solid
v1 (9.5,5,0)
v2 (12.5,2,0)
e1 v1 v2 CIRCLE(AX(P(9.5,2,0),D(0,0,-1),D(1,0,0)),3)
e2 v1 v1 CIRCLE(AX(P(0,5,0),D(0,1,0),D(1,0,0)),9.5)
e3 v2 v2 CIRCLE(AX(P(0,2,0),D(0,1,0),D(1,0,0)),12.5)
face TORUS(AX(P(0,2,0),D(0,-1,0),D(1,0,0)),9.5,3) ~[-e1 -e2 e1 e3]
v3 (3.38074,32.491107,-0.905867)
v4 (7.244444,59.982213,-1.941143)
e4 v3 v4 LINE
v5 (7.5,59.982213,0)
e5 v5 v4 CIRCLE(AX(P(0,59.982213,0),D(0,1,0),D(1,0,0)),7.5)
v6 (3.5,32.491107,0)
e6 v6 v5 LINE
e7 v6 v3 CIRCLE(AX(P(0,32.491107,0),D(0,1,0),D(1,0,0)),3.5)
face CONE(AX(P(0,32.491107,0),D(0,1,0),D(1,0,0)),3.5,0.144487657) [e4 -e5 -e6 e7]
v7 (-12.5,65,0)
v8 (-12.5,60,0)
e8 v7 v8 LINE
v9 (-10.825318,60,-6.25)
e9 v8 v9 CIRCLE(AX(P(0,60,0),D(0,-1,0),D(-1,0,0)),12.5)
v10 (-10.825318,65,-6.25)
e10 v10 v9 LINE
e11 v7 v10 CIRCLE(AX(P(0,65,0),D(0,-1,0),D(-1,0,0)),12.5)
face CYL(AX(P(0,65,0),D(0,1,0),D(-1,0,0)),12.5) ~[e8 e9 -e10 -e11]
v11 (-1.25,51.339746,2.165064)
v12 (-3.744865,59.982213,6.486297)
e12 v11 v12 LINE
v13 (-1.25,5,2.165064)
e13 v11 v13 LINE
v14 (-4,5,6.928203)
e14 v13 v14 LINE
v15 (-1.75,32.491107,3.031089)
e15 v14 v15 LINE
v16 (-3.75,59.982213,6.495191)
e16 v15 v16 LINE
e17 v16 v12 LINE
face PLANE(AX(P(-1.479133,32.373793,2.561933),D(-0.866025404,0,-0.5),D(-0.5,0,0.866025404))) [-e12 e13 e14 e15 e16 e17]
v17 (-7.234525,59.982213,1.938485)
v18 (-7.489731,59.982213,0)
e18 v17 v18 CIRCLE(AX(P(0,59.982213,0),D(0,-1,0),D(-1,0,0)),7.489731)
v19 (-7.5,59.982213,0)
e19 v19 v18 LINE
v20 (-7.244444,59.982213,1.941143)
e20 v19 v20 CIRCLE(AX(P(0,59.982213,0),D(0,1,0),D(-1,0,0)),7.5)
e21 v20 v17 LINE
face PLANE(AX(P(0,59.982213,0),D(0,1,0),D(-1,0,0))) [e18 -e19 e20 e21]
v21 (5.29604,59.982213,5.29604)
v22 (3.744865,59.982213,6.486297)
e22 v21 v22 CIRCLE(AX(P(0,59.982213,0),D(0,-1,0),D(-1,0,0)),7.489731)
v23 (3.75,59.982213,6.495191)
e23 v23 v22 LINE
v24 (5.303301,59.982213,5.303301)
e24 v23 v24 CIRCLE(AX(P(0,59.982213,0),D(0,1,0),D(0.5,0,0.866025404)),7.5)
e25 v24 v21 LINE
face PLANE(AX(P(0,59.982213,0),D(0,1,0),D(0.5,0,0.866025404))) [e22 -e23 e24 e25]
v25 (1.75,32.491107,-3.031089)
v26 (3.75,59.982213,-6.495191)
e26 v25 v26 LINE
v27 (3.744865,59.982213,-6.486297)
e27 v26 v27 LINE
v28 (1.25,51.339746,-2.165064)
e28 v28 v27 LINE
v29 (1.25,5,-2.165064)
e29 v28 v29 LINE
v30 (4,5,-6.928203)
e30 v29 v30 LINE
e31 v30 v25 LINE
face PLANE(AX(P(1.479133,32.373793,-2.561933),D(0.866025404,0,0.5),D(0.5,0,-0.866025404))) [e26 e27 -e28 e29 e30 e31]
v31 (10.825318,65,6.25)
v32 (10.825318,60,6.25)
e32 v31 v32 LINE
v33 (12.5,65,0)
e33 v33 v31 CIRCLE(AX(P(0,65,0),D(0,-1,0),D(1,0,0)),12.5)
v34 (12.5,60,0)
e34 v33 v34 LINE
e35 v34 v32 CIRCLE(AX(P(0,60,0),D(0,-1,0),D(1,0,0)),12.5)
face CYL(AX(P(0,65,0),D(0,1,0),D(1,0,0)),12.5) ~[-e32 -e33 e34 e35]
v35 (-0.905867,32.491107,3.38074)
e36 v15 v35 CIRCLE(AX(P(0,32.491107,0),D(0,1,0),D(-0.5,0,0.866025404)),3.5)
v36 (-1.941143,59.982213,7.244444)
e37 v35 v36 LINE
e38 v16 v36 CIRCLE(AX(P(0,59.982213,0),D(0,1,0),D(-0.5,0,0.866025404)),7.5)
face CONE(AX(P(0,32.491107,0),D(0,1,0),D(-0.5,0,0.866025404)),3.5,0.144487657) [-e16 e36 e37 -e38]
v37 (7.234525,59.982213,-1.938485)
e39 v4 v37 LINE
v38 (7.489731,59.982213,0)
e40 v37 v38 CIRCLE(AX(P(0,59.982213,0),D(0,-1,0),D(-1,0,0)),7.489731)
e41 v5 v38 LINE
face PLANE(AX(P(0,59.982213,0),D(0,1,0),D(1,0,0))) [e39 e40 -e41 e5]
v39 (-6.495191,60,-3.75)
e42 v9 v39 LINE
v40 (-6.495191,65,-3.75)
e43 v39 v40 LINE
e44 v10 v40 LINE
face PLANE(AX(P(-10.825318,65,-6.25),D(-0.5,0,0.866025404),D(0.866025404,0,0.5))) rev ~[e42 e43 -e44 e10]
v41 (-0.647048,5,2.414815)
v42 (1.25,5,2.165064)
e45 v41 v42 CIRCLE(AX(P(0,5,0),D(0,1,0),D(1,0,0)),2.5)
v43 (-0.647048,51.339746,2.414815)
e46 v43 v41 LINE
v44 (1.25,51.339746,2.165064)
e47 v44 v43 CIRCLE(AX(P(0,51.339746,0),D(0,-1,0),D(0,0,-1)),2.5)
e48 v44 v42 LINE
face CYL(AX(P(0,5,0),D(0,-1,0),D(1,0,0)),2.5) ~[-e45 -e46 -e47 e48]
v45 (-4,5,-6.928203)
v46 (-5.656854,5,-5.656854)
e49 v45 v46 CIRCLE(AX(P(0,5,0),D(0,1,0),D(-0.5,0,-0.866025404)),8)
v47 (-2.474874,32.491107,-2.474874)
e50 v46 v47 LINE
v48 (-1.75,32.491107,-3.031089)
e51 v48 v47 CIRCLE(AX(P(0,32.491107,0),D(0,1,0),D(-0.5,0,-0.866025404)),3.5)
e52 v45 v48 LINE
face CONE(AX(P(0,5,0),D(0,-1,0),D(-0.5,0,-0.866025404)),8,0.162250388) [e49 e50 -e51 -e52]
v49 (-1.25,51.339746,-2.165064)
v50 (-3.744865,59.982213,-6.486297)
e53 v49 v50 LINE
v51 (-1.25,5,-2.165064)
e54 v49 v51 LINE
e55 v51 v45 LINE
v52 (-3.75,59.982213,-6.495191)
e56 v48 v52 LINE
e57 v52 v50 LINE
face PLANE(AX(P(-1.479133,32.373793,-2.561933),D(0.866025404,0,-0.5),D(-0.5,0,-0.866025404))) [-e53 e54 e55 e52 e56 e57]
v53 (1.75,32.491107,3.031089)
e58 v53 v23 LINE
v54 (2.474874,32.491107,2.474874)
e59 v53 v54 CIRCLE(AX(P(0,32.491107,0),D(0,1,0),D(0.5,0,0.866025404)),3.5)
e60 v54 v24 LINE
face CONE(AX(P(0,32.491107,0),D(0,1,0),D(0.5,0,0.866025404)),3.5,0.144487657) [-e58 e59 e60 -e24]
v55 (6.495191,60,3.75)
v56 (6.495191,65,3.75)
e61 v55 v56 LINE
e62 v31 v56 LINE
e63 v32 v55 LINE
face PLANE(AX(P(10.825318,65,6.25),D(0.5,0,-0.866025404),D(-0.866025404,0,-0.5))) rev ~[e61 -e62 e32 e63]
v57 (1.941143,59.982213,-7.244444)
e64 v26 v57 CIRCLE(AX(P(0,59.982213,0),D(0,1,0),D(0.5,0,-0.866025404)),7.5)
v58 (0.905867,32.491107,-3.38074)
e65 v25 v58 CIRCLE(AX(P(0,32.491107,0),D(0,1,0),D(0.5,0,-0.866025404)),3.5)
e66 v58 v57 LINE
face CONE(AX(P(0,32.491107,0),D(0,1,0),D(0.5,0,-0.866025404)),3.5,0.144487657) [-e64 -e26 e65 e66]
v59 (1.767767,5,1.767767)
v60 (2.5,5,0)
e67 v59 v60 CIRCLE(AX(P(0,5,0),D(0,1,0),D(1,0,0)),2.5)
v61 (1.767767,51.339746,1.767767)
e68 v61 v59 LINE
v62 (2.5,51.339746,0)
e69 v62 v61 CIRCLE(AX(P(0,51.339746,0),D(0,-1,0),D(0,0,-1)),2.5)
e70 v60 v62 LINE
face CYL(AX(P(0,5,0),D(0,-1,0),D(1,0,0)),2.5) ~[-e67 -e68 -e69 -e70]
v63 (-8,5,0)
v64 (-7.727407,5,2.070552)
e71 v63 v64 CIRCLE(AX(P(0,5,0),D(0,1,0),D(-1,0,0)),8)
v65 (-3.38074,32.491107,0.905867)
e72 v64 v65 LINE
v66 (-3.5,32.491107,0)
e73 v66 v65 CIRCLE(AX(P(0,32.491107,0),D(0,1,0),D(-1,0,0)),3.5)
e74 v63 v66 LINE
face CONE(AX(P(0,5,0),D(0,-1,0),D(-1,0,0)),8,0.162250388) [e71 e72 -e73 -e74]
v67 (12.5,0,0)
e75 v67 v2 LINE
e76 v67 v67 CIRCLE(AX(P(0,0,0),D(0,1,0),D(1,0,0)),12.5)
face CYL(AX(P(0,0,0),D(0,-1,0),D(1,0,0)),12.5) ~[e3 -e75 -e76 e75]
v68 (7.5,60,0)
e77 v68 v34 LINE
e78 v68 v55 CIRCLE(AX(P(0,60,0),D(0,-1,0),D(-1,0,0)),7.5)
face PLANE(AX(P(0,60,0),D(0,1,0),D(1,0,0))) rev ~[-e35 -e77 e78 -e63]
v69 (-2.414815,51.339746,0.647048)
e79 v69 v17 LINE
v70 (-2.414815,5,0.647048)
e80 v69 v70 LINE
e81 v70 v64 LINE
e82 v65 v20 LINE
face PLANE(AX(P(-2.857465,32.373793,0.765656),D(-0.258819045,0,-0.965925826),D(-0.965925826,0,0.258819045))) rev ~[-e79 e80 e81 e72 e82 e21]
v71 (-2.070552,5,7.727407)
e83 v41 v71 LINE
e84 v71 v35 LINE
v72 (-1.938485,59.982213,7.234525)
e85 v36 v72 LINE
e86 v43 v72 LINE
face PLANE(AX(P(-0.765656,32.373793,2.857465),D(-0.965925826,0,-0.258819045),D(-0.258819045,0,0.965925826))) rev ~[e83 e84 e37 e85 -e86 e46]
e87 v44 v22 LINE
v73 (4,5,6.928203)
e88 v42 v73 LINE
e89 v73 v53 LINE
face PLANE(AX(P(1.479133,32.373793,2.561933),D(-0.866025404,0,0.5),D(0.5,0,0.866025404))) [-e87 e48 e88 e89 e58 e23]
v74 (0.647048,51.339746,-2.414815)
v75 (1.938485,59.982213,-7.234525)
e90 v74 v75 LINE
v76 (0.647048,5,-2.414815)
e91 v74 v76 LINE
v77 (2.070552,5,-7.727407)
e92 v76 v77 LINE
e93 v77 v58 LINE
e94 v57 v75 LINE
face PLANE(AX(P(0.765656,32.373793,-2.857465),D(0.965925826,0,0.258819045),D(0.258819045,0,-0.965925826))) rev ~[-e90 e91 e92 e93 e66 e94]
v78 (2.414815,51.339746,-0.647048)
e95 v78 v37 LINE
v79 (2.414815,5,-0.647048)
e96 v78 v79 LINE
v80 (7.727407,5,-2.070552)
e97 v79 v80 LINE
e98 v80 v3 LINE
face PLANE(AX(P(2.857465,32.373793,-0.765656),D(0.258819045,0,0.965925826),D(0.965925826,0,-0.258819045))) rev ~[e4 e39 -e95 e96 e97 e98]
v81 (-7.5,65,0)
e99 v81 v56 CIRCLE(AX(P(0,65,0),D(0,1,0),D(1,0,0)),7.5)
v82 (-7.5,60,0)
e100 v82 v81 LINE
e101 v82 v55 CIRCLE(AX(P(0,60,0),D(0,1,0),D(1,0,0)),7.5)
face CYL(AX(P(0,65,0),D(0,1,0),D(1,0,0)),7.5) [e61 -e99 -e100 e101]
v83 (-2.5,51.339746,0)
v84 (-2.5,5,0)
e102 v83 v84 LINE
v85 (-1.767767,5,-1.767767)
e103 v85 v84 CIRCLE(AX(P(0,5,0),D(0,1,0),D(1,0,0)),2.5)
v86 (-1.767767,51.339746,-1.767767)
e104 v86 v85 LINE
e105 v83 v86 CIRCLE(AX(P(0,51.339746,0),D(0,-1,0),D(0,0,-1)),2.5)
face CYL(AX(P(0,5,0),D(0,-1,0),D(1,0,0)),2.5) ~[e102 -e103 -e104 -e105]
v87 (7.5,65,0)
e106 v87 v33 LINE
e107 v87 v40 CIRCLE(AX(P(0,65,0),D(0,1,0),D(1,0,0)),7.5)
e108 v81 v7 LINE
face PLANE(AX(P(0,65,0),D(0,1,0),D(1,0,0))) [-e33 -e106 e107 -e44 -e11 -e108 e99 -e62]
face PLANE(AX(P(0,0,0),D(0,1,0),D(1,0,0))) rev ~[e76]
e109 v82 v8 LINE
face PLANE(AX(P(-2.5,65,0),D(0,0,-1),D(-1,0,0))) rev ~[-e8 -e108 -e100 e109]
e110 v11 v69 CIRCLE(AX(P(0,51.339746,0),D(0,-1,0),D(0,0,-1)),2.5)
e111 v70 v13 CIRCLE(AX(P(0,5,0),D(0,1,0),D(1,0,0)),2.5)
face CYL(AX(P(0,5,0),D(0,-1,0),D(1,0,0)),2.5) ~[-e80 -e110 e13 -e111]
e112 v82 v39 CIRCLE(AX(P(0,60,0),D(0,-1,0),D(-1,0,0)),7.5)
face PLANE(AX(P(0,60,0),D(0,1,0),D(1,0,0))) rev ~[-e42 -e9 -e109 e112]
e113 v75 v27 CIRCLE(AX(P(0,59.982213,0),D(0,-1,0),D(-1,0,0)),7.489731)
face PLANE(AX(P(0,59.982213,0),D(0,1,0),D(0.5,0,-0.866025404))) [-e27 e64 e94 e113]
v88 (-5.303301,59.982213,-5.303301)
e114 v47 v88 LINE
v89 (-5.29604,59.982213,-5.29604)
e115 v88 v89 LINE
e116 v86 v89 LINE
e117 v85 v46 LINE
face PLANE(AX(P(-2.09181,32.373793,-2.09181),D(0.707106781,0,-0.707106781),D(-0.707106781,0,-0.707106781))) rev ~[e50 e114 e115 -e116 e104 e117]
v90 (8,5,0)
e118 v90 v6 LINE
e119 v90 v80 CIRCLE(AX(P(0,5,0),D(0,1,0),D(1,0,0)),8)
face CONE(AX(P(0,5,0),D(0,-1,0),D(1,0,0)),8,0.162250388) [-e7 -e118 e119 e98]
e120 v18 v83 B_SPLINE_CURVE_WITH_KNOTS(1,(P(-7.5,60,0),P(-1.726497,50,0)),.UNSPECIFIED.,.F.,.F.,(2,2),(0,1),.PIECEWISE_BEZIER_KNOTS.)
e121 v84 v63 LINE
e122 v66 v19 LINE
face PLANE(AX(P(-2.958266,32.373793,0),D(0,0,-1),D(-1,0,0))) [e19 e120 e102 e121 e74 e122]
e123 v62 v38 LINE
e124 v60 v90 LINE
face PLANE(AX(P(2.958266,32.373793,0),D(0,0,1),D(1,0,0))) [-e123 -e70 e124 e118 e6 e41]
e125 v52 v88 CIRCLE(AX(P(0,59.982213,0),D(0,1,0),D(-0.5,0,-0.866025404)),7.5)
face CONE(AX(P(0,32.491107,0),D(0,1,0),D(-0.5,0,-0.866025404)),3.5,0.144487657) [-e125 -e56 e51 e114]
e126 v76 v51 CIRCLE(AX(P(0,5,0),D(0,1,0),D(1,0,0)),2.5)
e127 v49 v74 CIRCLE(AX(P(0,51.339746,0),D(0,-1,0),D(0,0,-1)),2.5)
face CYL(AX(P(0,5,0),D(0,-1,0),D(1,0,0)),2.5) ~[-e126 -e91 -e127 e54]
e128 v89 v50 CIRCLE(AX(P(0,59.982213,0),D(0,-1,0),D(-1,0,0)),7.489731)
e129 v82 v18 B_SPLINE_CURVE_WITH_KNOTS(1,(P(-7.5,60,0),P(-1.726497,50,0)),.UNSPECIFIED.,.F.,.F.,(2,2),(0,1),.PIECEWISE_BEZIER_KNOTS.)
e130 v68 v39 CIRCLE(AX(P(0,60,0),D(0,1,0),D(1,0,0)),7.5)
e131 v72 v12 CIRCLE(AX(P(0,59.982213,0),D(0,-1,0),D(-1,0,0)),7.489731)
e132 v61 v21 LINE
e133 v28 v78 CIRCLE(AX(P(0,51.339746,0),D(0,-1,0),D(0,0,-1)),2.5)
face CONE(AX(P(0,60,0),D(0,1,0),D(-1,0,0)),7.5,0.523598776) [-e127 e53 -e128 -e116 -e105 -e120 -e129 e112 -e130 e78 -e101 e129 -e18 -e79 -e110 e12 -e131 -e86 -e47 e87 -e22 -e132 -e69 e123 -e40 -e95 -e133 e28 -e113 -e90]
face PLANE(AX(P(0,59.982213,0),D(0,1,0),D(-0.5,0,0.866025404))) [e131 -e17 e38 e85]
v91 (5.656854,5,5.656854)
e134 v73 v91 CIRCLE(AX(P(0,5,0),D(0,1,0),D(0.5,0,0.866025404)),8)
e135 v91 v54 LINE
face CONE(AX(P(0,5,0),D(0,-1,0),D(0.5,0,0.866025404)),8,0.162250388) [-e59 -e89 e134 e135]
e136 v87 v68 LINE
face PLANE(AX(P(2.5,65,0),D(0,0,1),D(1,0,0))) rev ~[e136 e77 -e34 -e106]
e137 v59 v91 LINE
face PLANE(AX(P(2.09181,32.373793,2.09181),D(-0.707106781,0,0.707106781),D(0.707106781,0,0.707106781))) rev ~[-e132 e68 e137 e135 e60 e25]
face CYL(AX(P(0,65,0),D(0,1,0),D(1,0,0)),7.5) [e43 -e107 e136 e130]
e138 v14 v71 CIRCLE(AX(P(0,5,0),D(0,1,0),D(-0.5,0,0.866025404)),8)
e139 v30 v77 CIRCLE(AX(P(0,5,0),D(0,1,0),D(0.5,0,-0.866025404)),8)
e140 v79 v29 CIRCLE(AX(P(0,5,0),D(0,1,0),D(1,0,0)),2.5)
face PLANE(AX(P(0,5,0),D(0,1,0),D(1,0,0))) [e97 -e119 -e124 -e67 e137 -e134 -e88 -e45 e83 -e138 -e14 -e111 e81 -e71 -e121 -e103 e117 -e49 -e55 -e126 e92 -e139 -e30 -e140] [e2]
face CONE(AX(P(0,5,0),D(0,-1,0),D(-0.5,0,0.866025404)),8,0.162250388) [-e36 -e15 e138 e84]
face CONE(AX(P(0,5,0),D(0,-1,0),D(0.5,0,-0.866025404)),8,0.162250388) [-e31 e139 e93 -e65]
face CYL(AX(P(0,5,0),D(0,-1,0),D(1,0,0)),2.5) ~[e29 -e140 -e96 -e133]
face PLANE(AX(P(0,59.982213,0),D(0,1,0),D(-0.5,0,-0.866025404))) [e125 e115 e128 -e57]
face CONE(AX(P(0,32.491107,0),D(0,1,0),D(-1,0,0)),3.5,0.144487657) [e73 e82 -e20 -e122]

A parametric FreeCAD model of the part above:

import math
import FreeCAD as App
import Part
import Sketcher

V = App.Vector
Q = App.Units.Quantity


def edges_at(feature, points):
    """Names of the edges that pass closest to the given points."""
    edges = feature.Shape.Edges
    near = lambda p: min(range(len(edges)), key=lambda i: edges[i].distToShape(Part.Vertex(*p))[0])
    return sorted({f"Edge{near(p) + 1}" for p in points})

doc = App.newDocument("Part")
body = doc.addObject("PartDesign::Body", "Body")

# Sketch on XZ plane
sketch1 = body.newObject("Sketcher::SketchObject", "Sketch")
sketch1.AttachmentSupport = (doc.getObject("XZ_Plane"), [""])
sketch1.MapMode = "FlatFace"
sketch1.addGeometry(Part.Circle(V(0, 0, 0), V(0, 0, 1), 12.5), False)
sketch1.addConstraint(Sketcher.Constraint("Coincident", 0, 3, -1, 1))
sketch1.addConstraint(Sketcher.Constraint("Diameter", 0, Q("25 mm")))
pad1 = body.newObject("PartDesign::Pad", "Pad")
pad1.Profile = sketch1
pad1.Length = 5
pad1.Reversed = True

# Sketch on XZ plane
sketch2 = body.newObject("Sketcher::SketchObject", "Sketch001")
sketch2.AttachmentSupport = (doc.getObject("XZ_Plane"), [""])
sketch2.MapMode = "FlatFace"
sketch2.AttachmentOffset = App.Placement(V(0, 0, -5), App.Rotation())
sketch2.addGeometry(Part.Circle(V(0, 0, 0), V(0, 0, 1), 2.5), False)
sketch2.addConstraint(Sketcher.Constraint("Coincident", 0, 3, -1, 1))
sketch2.addConstraint(Sketcher.Constraint("Diameter", 0, Q("5 mm")))
pad2 = body.newObject("PartDesign::Pad", "Pad001")
pad2.Profile = sketch2
pad2.Length = 60
pad2.Reversed = True

# Sketch on XZ plane
sketch3 = body.newObject("Sketcher::SketchObject", "Sketch002")
sketch3.AttachmentSupport = (doc.getObject("XZ_Plane"), [""])
sketch3.MapMode = "FlatFace"
sketch3.AttachmentOffset = App.Placement(V(0, 0, -65), App.Rotation())
sketch3.addGeometry(Part.LineSegment(V(12.5, 0, 0), V(2.5, 0, 0)), False)
sketch3.addGeometry(Part.ArcOfCircle(Part.Circle(V(0, 0, 0), V(0, 0, 1), 2.5), math.radians(-150), math.radians(0)), False)
sketch3.addGeometry(Part.LineSegment(V(-2.165064, -1.25, 0), V(-10.825318, -6.25, 0)), False)
sketch3.addGeometry(Part.ArcOfCircle(Part.Circle(V(0, 0, 0), V(0, 0, 1), 12.5), math.radians(180), math.radians(210)), False)
sketch3.addGeometry(Part.LineSegment(V(-12.5, 0, 0), V(-2.5, 0, 0)), False)
sketch3.addGeometry(Part.ArcOfCircle(Part.Circle(V(0, 0, 0), V(0, 0, 1), 2.5), math.radians(30), math.radians(180)), False)
sketch3.addGeometry(Part.LineSegment(V(2.165064, 1.25, 0), V(10.825318, 6.25, 0)), False)
sketch3.addGeometry(Part.ArcOfCircle(Part.Circle(V(0, 0, 0), V(0, 0, 1), 12.5), math.radians(0), math.radians(30)), False)
sketch3.addConstraint(Sketcher.Constraint("Coincident", 0, 2, 1, 2))
sketch3.addConstraint(Sketcher.Constraint("Coincident", 1, 1, 2, 1))
sketch3.addConstraint(Sketcher.Constraint("Coincident", 2, 2, 3, 2))
sketch3.addConstraint(Sketcher.Constraint("Coincident", 3, 1, 4, 1))
sketch3.addConstraint(Sketcher.Constraint("Coincident", 4, 2, 5, 2))
sketch3.addConstraint(Sketcher.Constraint("Coincident", 5, 1, 6, 1))
sketch3.addConstraint(Sketcher.Constraint("Coincident", 6, 2, 7, 2))
sketch3.addConstraint(Sketcher.Constraint("Coincident", 7, 1, 0, 1))
sketch3.addConstraint(Sketcher.Constraint("Horizontal", 0))
sketch3.addConstraint(Sketcher.Constraint("Horizontal", 4))
sketch3.addConstraint(Sketcher.Constraint("Coincident", 1, 3, -1, 1))
sketch3.addConstraint(Sketcher.Constraint("Coincident", 3, 3, -1, 1))
sketch3.addConstraint(Sketcher.Constraint("Coincident", 5, 3, -1, 1))
sketch3.addConstraint(Sketcher.Constraint("Coincident", 7, 3, -1, 1))
sketch3.addConstraint(Sketcher.Constraint("Equal", 1, 5))
sketch3.addConstraint(Sketcher.Constraint("Equal", 3, 7))
sketch3.addConstraint(Sketcher.Constraint("PointOnObject", 0, 2, -1))
sketch3.addConstraint(Sketcher.Constraint("PointOnObject", 3, 1, -1))
sketch3.addConstraint(Sketcher.Constraint("Parallel", 2, 6))
sketch3.addConstraint(Sketcher.Constraint("Radius", 1, Q("2.5 mm")))
sketch3.addConstraint(Sketcher.Constraint("Radius", 3, Q("12.5 mm")))
sketch3.addConstraint(Sketcher.Constraint("Angle", 2, Q("-150 deg")))
sketch3.addConstraint(Sketcher.Constraint("DistanceY", 1, 1, -1, 1, Q("1.25 mm")))
sketch3.addConstraint(Sketcher.Constraint("DistanceY", -1, 1, 5, 1, Q("1.25 mm")))
pad3 = body.newObject("PartDesign::Pad", "Pad002")
pad3.Profile = sketch3
pad3.Length = 5

# Sketch on XY plane
sketch4 = body.newObject("Sketcher::SketchObject", "Sketch003")
sketch4.AttachmentSupport = (doc.getObject("XY_Plane"), [""])
sketch4.MapMode = "FlatFace"
sketch4.addGeometry(Part.LineSegment(V(8, 5, 0), V(3.5, 32.491107, 0)), False)
sketch4.addGeometry(Part.LineSegment(V(3.5, 32.491107, 0), V(7.5, 59.982213, 0)), False)
sketch4.addGeometry(Part.LineSegment(V(7.5, 59.982213, 0), V(0, 59.982213, 0)), False)
sketch4.addGeometry(Part.LineSegment(V(0, 59.982213, 0), V(0, 5, 0)), False)
sketch4.addGeometry(Part.LineSegment(V(0, 5, 0), V(8, 5, 0)), False)
sketch4.addConstraint(Sketcher.Constraint("Coincident", 0, 2, 1, 1))
sketch4.addConstraint(Sketcher.Constraint("Coincident", 1, 2, 2, 1))
sketch4.addConstraint(Sketcher.Constraint("Coincident", 2, 2, 3, 1))
sketch4.addConstraint(Sketcher.Constraint("Coincident", 3, 2, 4, 1))
sketch4.addConstraint(Sketcher.Constraint("Coincident", 4, 2, 0, 1))
sketch4.addConstraint(Sketcher.Constraint("Horizontal", 2))
sketch4.addConstraint(Sketcher.Constraint("Vertical", 3))
sketch4.addConstraint(Sketcher.Constraint("Horizontal", 4))
sketch4.addConstraint(Sketcher.Constraint("PointOnObject", 2, 2, -2))
sketch4.addConstraint(Sketcher.Constraint("DistanceX", 4, 1, 4, 2, Q("8 mm")))
sketch4.addConstraint(Sketcher.Constraint("DistanceX", 2, 2, 2, 1, Q("7.5 mm")))
sketch4.addConstraint(Sketcher.Constraint("DistanceY", -1, 1, 3, 2, Q("5 mm")))
sketch4.addConstraint(Sketcher.Constraint("DistanceX", 0, 2, 1, 2, Q("4 mm")))
sketch4.addConstraint(Sketcher.Constraint("DistanceY", 3, 2, 3, 1, Q("54.982213 mm")))
sketch4.addConstraint(Sketcher.Constraint("Distance", 0, Q("27.856973 mm")))
revolution = body.newObject("PartDesign::Revolution", "Revolution")
revolution.Profile = sketch4
revolution.ReferenceAxis = (sketch4, ["V_Axis"])
revolution.Angle = 15

# Sketch on XZ plane
sketch5 = body.newObject("Sketcher::SketchObject", "Sketch004")
sketch5.AttachmentSupport = (doc.getObject("XZ_Plane"), [""])
sketch5.MapMode = "FlatFace"
sketch5.AttachmentOffset = App.Placement(V(0, 0, -65), App.Rotation())
sketch5.addGeometry(Part.Circle(V(0, 0, 0), V(0, 0, 1), 7.5), False)
sketch5.addConstraint(Sketcher.Constraint("Coincident", 0, 3, -1, 1))
sketch5.addConstraint(Sketcher.Constraint("Diameter", 0, Q("15 mm")))
pad4 = body.newObject("PartDesign::Pad", "Pad003")
pad4.Profile = sketch5
pad4.Length = 5
doc.recompute()

polarpattern = body.newObject("PartDesign::PolarPattern", "PolarPattern")
polarpattern.Originals = [revolution]
polarpattern.Axis = (doc.getObject("Y_Axis"), [""])
polarpattern.Angle = 360
polarpattern.Occurrences = 6
body.Tip = polarpattern
doc.recompute()

fillet = body.newObject("PartDesign::Fillet", "Fillet")
fillet.Base = (polarpattern, edges_at(polarpattern, [(-12.5, 5, 0)]))
fillet.Radius = 3

# Sketch on XZ plane
sketch6 = body.newObject("Sketcher::SketchObject", "Sketch005")
sketch6.AttachmentSupport = (doc.getObject("XZ_Plane"), [""])
sketch6.MapMode = "FlatFace"
sketch6.AttachmentOffset = App.Placement(V(0, 0, -60), App.Rotation())
sketch6.addGeometry(Part.Circle(V(0, 0, 0), V(0, 0, 1), 7.5), False)
sketch6.addConstraint(Sketcher.Constraint("Coincident", 0, 3, -1, 1))
sketch6.addConstraint(Sketcher.Constraint("Diameter", 0, Q("15 mm")))
pad5 = body.newObject("PartDesign::Pad", "Pad004")
pad5.Profile = sketch6
pad5.Length = 10
pad5.TaperAngle = -30

doc.recompute()
